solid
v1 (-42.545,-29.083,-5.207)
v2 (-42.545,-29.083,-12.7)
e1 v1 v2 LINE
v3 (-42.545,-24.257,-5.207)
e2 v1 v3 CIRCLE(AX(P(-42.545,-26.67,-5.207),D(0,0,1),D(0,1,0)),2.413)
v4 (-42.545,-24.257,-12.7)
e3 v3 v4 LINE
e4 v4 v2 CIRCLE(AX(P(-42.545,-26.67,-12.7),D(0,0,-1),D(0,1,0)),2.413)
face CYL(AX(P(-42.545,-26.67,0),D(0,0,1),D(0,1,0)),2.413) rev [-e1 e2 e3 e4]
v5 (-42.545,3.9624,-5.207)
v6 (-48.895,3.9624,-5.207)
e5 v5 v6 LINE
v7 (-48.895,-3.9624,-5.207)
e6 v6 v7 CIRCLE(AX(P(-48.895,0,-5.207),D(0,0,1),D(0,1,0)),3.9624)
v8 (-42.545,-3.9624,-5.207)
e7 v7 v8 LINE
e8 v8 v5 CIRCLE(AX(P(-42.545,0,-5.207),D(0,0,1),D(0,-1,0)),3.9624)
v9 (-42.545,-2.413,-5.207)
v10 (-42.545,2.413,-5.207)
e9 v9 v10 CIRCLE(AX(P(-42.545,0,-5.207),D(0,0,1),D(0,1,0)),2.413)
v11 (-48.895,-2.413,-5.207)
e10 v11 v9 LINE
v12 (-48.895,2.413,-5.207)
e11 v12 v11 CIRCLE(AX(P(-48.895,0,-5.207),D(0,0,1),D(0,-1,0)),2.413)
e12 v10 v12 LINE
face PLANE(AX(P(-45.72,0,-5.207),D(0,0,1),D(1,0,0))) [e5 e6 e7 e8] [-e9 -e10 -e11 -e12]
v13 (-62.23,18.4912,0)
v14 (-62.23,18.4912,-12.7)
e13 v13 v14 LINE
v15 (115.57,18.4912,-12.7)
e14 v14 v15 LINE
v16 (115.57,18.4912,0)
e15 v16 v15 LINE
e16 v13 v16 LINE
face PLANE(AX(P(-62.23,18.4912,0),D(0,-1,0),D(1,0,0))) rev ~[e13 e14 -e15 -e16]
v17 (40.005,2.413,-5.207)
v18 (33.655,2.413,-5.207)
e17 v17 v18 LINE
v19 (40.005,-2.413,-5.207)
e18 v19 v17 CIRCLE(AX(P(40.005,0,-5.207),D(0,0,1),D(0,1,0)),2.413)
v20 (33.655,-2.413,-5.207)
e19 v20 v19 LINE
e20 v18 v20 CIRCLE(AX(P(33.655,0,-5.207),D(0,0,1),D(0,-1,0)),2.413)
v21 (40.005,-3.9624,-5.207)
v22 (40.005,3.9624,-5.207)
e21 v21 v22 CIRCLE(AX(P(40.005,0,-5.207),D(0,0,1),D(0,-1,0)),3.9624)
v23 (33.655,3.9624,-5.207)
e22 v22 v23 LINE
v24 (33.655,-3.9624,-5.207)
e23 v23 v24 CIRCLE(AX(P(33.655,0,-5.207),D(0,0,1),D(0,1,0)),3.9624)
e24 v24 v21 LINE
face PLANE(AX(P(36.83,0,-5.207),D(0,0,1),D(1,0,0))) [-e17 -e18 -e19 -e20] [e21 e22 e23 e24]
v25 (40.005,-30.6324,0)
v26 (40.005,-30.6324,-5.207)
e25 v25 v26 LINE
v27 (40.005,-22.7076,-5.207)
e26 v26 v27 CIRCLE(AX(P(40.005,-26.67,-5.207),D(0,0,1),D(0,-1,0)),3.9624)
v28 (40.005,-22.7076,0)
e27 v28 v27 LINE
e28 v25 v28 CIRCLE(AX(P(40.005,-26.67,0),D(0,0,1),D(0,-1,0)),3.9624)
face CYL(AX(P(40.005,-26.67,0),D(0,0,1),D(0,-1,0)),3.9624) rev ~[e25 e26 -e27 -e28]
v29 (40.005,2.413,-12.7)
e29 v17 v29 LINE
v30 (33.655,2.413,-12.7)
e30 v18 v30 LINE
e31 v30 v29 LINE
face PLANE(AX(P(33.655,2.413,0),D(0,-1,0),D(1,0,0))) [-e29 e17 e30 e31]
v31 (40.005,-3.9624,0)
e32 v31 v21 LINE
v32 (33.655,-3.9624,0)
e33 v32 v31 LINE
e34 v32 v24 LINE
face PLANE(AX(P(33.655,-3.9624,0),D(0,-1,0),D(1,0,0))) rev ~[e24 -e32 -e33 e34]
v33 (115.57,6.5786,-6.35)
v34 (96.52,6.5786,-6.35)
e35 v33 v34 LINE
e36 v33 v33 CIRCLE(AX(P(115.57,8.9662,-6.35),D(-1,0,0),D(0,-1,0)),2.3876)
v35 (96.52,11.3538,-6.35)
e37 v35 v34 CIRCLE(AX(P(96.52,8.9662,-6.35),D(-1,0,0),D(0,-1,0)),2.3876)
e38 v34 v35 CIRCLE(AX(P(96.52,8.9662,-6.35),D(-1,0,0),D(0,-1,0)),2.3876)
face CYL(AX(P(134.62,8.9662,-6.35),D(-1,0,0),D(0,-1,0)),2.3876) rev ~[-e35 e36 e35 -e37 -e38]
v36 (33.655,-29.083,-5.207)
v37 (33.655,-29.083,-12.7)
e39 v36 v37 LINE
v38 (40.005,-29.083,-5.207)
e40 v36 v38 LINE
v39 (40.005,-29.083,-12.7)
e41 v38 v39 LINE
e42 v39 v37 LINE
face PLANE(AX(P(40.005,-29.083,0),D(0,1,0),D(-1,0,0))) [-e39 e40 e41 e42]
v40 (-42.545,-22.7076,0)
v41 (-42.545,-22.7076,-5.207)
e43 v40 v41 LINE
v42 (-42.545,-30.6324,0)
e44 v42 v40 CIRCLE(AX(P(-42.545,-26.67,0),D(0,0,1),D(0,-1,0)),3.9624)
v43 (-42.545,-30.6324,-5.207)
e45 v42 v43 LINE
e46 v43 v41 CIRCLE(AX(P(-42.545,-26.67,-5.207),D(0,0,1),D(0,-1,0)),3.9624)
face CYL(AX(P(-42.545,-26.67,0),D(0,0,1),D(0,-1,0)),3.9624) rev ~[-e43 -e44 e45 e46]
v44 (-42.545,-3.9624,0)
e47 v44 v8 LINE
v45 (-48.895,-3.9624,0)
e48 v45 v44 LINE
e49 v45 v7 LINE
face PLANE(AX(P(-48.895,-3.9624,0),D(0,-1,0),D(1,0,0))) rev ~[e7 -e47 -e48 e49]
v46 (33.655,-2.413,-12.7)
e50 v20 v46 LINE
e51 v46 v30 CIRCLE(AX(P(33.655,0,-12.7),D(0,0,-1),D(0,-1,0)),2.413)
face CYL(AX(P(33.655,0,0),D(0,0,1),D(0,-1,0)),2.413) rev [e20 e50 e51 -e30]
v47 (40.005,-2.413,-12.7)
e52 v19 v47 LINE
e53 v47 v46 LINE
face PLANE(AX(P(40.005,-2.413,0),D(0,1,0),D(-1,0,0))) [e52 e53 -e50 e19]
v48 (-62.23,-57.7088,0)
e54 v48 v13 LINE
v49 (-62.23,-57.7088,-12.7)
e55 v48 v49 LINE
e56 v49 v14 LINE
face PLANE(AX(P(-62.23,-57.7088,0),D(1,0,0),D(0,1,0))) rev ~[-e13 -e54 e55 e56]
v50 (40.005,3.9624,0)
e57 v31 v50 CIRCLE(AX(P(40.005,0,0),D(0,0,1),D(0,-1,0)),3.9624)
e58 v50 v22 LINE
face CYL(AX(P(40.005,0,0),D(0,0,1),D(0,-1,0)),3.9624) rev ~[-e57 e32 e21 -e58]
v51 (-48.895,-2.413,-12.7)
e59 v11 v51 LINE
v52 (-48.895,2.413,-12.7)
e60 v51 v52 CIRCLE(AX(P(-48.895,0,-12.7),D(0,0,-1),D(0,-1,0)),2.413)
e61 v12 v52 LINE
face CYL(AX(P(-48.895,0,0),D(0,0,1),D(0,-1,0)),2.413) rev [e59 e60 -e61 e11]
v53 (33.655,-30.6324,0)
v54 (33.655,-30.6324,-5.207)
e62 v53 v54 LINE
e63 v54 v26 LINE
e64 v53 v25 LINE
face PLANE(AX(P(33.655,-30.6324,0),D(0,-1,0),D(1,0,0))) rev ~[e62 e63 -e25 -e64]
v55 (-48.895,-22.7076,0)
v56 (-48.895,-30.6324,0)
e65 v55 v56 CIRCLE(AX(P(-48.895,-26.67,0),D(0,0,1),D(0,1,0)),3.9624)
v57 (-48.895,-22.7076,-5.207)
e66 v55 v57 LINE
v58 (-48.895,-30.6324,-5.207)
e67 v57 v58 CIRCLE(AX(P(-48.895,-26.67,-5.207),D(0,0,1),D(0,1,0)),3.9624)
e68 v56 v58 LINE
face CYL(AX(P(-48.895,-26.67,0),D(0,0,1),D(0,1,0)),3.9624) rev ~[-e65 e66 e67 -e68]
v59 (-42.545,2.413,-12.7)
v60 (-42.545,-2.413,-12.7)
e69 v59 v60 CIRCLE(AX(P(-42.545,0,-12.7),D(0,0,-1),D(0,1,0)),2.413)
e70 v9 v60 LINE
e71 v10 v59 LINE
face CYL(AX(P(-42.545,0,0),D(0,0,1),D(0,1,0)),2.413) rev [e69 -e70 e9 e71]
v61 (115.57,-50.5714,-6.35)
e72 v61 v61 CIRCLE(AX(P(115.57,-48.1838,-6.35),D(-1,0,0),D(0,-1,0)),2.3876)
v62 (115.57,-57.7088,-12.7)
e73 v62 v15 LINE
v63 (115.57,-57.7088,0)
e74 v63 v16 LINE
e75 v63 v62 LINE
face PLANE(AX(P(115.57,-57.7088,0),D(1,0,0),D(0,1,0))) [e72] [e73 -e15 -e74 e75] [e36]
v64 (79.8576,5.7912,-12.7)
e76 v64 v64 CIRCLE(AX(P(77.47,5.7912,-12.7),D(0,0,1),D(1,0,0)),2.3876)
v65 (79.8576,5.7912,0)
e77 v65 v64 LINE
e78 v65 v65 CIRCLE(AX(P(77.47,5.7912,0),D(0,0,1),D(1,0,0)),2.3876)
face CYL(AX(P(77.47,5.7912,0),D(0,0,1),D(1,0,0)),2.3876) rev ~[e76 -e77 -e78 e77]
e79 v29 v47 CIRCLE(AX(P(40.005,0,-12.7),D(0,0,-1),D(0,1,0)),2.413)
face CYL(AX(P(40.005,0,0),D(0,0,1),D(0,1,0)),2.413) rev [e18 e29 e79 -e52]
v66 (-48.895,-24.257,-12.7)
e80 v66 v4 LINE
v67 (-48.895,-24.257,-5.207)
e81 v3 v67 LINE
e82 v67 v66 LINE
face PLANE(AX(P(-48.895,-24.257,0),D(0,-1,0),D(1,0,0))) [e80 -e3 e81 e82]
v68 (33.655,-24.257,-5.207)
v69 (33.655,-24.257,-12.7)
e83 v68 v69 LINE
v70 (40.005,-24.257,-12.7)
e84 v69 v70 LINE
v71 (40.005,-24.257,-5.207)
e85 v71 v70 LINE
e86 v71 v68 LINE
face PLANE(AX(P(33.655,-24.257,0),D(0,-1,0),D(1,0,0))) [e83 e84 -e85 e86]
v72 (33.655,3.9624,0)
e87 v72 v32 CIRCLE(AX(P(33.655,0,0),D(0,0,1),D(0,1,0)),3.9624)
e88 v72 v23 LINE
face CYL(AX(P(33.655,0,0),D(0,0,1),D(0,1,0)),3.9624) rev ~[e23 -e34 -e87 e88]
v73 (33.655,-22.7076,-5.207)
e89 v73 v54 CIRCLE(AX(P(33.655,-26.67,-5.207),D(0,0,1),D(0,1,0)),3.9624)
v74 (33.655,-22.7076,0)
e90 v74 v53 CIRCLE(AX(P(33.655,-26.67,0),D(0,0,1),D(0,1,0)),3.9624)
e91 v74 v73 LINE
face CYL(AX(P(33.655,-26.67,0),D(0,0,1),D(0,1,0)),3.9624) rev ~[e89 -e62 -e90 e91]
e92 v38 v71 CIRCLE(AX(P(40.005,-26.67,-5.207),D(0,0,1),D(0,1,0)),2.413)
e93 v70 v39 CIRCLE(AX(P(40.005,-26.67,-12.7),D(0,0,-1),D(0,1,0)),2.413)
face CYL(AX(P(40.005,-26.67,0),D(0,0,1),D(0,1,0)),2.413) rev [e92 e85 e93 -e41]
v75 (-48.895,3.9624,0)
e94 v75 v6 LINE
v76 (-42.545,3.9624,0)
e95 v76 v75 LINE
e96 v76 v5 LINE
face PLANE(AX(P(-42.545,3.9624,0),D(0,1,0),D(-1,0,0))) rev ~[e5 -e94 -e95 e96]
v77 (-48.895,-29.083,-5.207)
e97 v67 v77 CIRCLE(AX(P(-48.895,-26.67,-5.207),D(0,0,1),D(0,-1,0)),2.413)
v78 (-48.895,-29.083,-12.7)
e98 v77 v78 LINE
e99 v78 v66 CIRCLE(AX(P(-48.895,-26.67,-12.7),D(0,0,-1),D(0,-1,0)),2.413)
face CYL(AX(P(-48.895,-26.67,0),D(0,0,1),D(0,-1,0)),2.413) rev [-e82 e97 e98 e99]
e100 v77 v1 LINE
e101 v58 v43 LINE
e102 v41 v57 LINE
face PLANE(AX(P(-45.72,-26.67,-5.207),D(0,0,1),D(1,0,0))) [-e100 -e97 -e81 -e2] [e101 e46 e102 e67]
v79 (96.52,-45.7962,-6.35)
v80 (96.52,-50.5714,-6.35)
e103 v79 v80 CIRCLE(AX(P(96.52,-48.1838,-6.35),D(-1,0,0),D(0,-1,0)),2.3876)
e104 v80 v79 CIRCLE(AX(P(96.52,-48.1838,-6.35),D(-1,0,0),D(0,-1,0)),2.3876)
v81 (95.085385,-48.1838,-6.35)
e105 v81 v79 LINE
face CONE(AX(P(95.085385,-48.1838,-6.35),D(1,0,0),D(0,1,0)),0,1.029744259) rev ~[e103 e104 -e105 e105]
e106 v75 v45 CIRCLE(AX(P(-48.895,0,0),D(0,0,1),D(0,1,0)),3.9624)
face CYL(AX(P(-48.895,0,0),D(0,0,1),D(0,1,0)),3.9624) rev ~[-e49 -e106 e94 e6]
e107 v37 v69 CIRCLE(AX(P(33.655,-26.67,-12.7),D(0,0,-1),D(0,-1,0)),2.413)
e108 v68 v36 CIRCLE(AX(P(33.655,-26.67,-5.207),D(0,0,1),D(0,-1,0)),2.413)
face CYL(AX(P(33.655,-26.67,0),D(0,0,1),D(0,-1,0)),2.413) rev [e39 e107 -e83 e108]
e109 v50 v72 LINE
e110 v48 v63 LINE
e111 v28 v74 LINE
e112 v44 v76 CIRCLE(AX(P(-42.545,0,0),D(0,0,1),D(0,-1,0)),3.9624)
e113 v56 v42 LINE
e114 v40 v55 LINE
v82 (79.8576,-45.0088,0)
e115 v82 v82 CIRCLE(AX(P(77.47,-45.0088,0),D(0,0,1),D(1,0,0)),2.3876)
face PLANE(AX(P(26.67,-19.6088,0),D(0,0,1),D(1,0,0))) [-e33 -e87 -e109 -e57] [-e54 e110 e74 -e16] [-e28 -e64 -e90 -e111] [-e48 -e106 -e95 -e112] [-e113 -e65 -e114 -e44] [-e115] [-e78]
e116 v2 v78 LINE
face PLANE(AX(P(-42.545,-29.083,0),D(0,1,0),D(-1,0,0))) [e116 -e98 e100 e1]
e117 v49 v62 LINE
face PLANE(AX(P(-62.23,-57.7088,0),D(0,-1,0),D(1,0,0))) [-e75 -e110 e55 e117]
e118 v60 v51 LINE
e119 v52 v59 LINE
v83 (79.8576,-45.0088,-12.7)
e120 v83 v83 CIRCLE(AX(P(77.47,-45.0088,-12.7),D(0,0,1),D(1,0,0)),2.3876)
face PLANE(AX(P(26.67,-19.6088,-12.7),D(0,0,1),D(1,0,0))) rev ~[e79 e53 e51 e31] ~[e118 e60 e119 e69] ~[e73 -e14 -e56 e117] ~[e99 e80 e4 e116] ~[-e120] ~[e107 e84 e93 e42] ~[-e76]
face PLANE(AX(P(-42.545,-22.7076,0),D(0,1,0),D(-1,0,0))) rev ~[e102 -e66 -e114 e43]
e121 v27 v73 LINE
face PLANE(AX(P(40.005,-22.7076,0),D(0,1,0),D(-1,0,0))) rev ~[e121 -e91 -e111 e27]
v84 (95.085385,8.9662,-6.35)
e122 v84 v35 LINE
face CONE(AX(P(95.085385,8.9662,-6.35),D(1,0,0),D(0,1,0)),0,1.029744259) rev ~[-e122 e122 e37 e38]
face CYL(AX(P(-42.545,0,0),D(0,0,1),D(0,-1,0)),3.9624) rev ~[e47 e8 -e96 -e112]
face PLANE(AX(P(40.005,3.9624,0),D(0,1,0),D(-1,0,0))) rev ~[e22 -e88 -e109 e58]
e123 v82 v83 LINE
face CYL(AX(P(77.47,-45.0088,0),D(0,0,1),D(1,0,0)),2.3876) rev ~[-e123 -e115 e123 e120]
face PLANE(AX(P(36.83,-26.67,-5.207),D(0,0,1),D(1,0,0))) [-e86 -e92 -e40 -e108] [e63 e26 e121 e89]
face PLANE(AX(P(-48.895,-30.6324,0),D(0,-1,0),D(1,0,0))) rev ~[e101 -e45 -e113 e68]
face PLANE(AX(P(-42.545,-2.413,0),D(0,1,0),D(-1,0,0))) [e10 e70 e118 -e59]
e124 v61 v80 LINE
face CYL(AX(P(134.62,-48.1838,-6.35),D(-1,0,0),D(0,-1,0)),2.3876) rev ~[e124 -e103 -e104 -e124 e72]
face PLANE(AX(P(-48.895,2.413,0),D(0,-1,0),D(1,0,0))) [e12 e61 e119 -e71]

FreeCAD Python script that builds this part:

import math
import FreeCAD as App
import Part
import Sketcher
from FreeCAD import Vector
Q = App.Units.Quantity

doc = App.newDocument("Part")
params = doc.addObject("Spreadsheet::Sheet", "Params")
for row, (alias, value) in enumerate([
    ("sketch1_width", "7 in"),
    ("sketch1_height", "3 in"),
    ("sketch1_diameter", "0.188 in"),
    ("sketch1_radius", "0.095 in"),
    ("sketch1_width2", "0.25 in"),
    ("pad1_length", "0.5 in"),
    ("sketch2_radius", "0.156 in"),
    ("sketch2_width", "0.25 in"),
    ("pocket1_length", "0.205 in"),
    ("sketch3_diameter", "0.188 in"),
    ("hole_diameter", "0.188 in"),
    ("hole_depth", "0.75 in"),
], start=1):
    params.set(f"A{row}", alias)
    params.set(f"B{row}", "=" + value)
    params.setAlias(f"B{row}", alias)

body = doc.addObject("PartDesign::Body", "Body")

# Sketch on XY plane
sketch1 = body.newObject("Sketcher::SketchObject", "Sketch")
sketch1.AttachmentSupport = (doc.getObject("XY_Plane"), [""])
sketch1.MapMode = "FlatFace"
sketch1.addGeometry([
    Part.LineSegment(Vector(-62.2, 18.5, 0), Vector(-62.2, -57.7, 0)),  # 0
    Part.LineSegment(Vector(-62.2, -57.7, 0), Vector(115.6, -57.7, 0)),  # 1
    Part.LineSegment(Vector(115.6, -57.7, 0), Vector(115.6, 18.5, 0)),  # 2
    Part.LineSegment(Vector(115.6, 18.5, 0), Vector(-62.2, 18.5, 0)),  # 3
    Part.LineSegment(Vector(-42.5, -29.1, 0), Vector(-48.9, -29.1, 0)),  # 4
    Part.ArcOfCircle(Part.Circle(Vector(-48.9, -26.7, 0), Vector(0, 0, 1), 2.4), math.radians(90), math.radians(270)),  # 5
    Part.LineSegment(Vector(-48.9, -24.3, 0), Vector(-42.5, -24.3, 0)),  # 6
    Part.ArcOfCircle(Part.Circle(Vector(-42.5, -26.7, 0), Vector(0, 0, 1), 2.4), math.radians(-90), math.radians(90)),  # 7
    Part.Circle(Vector(77.5, -45, 0), Vector(0, 0, 1), 2.4),  # 8
    Part.LineSegment(Vector(40, -29.1, 0), Vector(33.7, -29.1, 0)),  # 9
    Part.ArcOfCircle(Part.Circle(Vector(33.7, -26.7, 0), Vector(0, 0, 1), 2.4), math.radians(90), math.radians(270)),  # 10
    Part.LineSegment(Vector(33.7, -24.3, 0), Vector(40, -24.3, 0)),  # 11
    Part.ArcOfCircle(Part.Circle(Vector(40, -26.7, 0), Vector(0, 0, 1), 2.4), math.radians(-90), math.radians(90)),  # 12
    Part.LineSegment(Vector(-42.5, -2.4, 0), Vector(-48.9, -2.4, 0)),  # 13
    Part.ArcOfCircle(Part.Circle(Vector(-48.9, 0, 0), Vector(0, 0, 1), 2.4), math.radians(90), math.radians(270)),  # 14
    Part.LineSegment(Vector(-48.9, 2.4, 0), Vector(-42.5, 2.4, 0)),  # 15
    Part.ArcOfCircle(Part.Circle(Vector(-42.5, 0, 0), Vector(0, 0, 1), 2.4), math.radians(-90), math.radians(90)),  # 16
    Part.ArcOfCircle(Part.Circle(Vector(40, 0, 0), Vector(0, 0, 1), 2.4), math.radians(-90), math.radians(90)),  # 17
    Part.LineSegment(Vector(40, -2.4, 0), Vector(33.7, -2.4, 0)),  # 18
    Part.ArcOfCircle(Part.Circle(Vector(33.7, 0, 0), Vector(0, 0, 1), 2.4), math.radians(90), math.radians(270)),  # 19
    Part.LineSegment(Vector(33.7, 2.4, 0), Vector(40, 2.4, 0)),  # 20
    Part.Circle(Vector(77.5, 5.8, 0), Vector(0, 0, 1), 2.4),  # 21
], False)
sketch1.addConstraint([
    Sketcher.Constraint("Coincident", 0, 2, 1, 1),
    Sketcher.Constraint("Coincident", 1, 2, 2, 1),
    Sketcher.Constraint("Coincident", 2, 2, 3, 1),
    Sketcher.Constraint("Coincident", 3, 2, 0, 1),
    Sketcher.Constraint("Tangent", 4, 2, 5, 2),
    Sketcher.Constraint("Tangent", 5, 1, 6, 1),
    Sketcher.Constraint("Tangent", 6, 2, 7, 2),
    Sketcher.Constraint("Tangent", 7, 1, 4, 1),
    Sketcher.Constraint("Tangent", 9, 2, 10, 2),
    Sketcher.Constraint("Tangent", 10, 1, 11, 1),
    Sketcher.Constraint("Tangent", 11, 2, 12, 2),
    Sketcher.Constraint("Tangent", 12, 1, 9, 1),
    Sketcher.Constraint("Tangent", 13, 2, 14, 2),
    Sketcher.Constraint("Tangent", 14, 1, 15, 1),
    Sketcher.Constraint("Tangent", 15, 2, 16, 2),
    Sketcher.Constraint("Tangent", 16, 1, 13, 1),
    Sketcher.Constraint("Tangent", 17, 1, 18, 1),
    Sketcher.Constraint("Tangent", 18, 2, 19, 2),
    Sketcher.Constraint("Tangent", 19, 1, 20, 1),
    Sketcher.Constraint("Tangent", 20, 2, 17, 2),
    Sketcher.Constraint("Vertical", 0),
    Sketcher.Constraint("Horizontal", 1),
    Sketcher.Constraint("Vertical", 2),
    Sketcher.Constraint("Horizontal", 3),
    Sketcher.Constraint("Horizontal", 4),
    Sketcher.Constraint("Horizontal", 6),
    Sketcher.Constraint("Horizontal", 9),
    Sketcher.Constraint("Horizontal", 11),
    Sketcher.Constraint("Horizontal", 13),
    Sketcher.Constraint("Horizontal", 15),
    Sketcher.Constraint("Horizontal", 18),
    Sketcher.Constraint("Horizontal", 20),
    Sketcher.Constraint("Equal", 7, 10),
    Sketcher.Constraint("Equal", 12, 14),
    Sketcher.Constraint("Equal", 16, 17),
    Sketcher.Constraint("Equal", 8, 21),
    Sketcher.Constraint("PointOnObject", 14, 3, -1),
    Sketcher.Constraint("PointOnObject", 17, 3, -1),
    Sketcher.Constraint("Horizontal", 7, 3, 10, 3),
    Sketcher.Constraint("Vertical", 5, 3, 14, 3),
    Sketcher.Constraint("Vertical", 7, 3, 16, 3),
    Sketcher.Constraint("Vertical", 12, 3, 17, 3),
    Sketcher.Constraint("Vertical", 10, 3, 19, 3),
    Sketcher.Constraint("Vertical", 8, 3, 21, 3),
    Sketcher.Constraint("Equal", 6, 9),
    Sketcher.Constraint("DistanceX", 1, 1, 1, 2, Q("7 in")),
    Sketcher.Constraint("DistanceY", 0, 2, 0, 1, Q("3 in")),
    Sketcher.Constraint("Diameter", 8, Q("0.188 in")),
    Sketcher.Constraint("Radius", 5, Q("0.095 in")),
    Sketcher.Constraint("DistanceX", 7, 3, 10, 3, Q("3 in")),
    Sketcher.Constraint("DistanceY", 8, 3, 21, 3, Q("2 in")),
    Sketcher.Constraint("DistanceX", 4, 2, 4, 1, Q("0.25 in")),
    Sketcher.Constraint("DistanceX", 8, 3, 1, 2, Q("1.5 in")),
    Sketcher.Constraint("DistanceY", 1, 2, 8, 3, Q("0.5 in")),
    Sketcher.Constraint("DistanceY", 5, 3, -1, 1, Q("1.05 in")),
    Sketcher.Constraint("DistanceX", -1, 1, 8, 3, Q("3.05 in")),
    Sketcher.Constraint("DistanceX", 5, 3, -1, 1, Q("1.925 in")),
    Sketcher.Constraint("DistanceY", 8, 3, -1, 1, Q("1.772 in")),
])
sketch1.setExpression("Constraints[45]", "Params.sketch1_width")
sketch1.setExpression("Constraints[46]", "Params.sketch1_height")
sketch1.setExpression("Constraints[47]", "Params.sketch1_diameter")
sketch1.setExpression("Constraints[48]", "Params.sketch1_radius")
sketch1.setExpression("Constraints[51]", "Params.sketch1_width2")
pad1 = body.newObject("PartDesign::Pad", "Pad")
pad1.Profile = sketch1
pad1.setExpression("Length", "Params.pad1_length")
pad1.Reversed = True

# Sketch on XY plane
sketch2 = body.newObject("Sketcher::SketchObject", "Sketch001")
sketch2.AttachmentSupport = (doc.getObject("XY_Plane"), [""])
sketch2.MapMode = "FlatFace"
sketch2.addGeometry([
    Part.LineSegment(Vector(-42.5, 4, 0), Vector(-48.9, 4, 0)),  # 0
    Part.ArcOfCircle(Part.Circle(Vector(-48.9, 0, 0), Vector(0, 0, 1), 4), math.radians(90), math.radians(270)),  # 1
    Part.LineSegment(Vector(-48.9, -4, 0), Vector(-42.5, -4, 0)),  # 2
    Part.ArcOfCircle(Part.Circle(Vector(-42.5, 0, 0), Vector(0, 0, 1), 4), math.radians(-90), math.radians(90)),  # 3
    Part.LineSegment(Vector(33.7, -4, 0), Vector(40, -4, 0)),  # 4
    Part.ArcOfCircle(Part.Circle(Vector(40, 0, 0), Vector(0, 0, 1), 4), math.radians(-90), math.radians(90)),  # 5
    Part.LineSegment(Vector(40, 4, 0), Vector(33.7, 4, 0)),  # 6
    Part.ArcOfCircle(Part.Circle(Vector(33.7, 0, 0), Vector(0, 0, 1), 4), math.radians(90), math.radians(270)),  # 7
    Part.ArcOfCircle(Part.Circle(Vector(40, -26.7, 0), Vector(0, 0, 1), 4), math.radians(-90), math.radians(90)),  # 8
    Part.LineSegment(Vector(40, -22.7, 0), Vector(33.7, -22.7, 0)),  # 9
    Part.ArcOfCircle(Part.Circle(Vector(33.7, -26.7, 0), Vector(0, 0, 1), 4), math.radians(90), math.radians(270)),  # 10
    Part.LineSegment(Vector(33.7, -30.6, 0), Vector(40, -30.6, 0)),  # 11
    Part.LineSegment(Vector(-42.5, -22.7, 0), Vector(-48.9, -22.7, 0)),  # 12
    Part.ArcOfCircle(Part.Circle(Vector(-48.9, -26.7, 0), Vector(0, 0, 1), 4), math.radians(90), math.radians(270)),  # 13
    Part.LineSegment(Vector(-48.9, -30.6, 0), Vector(-42.5, -30.6, 0)),  # 14
    Part.ArcOfCircle(Part.Circle(Vector(-42.5, -26.7, 0), Vector(0, 0, 1), 4), math.radians(-90), math.radians(90)),  # 15
], False)
sketch2.addConstraint([
    Sketcher.Constraint("Tangent", 0, 2, 1, 1),
    Sketcher.Constraint("Tangent", 1, 2, 2, 1),
    Sketcher.Constraint("Tangent", 2, 2, 3, 1),
    Sketcher.Constraint("Tangent", 3, 2, 0, 1),
    Sketcher.Constraint("Tangent", 4, 2, 5, 1),
    Sketcher.Constraint("Tangent", 5, 2, 6, 1),
    Sketcher.Constraint("Tangent", 6, 2, 7, 1),
    Sketcher.Constraint("Tangent", 7, 2, 4, 1),
    Sketcher.Constraint("Tangent", 8, 2, 9, 1),
    Sketcher.Constraint("Tangent", 9, 2, 10, 1),
    Sketcher.Constraint("Tangent", 10, 2, 11, 1),
    Sketcher.Constraint("Tangent", 11, 2, 8, 1),
    Sketcher.Constraint("Tangent", 12, 2, 13, 1),
    Sketcher.Constraint("Tangent", 13, 2, 14, 1),
    Sketcher.Constraint("Tangent", 14, 2, 15, 1),
    Sketcher.Constraint("Tangent", 15, 2, 12, 1),
    Sketcher.Constraint("Horizontal", 0),
    Sketcher.Constraint("Horizontal", 2),
    Sketcher.Constraint("Horizontal", 4),
    Sketcher.Constraint("Horizontal", 6),
    Sketcher.Constraint("Horizontal", 9),
    Sketcher.Constraint("Horizontal", 11),
    Sketcher.Constraint("Horizontal", 12),
    Sketcher.Constraint("Horizontal", 14),
    Sketcher.Constraint("Equal", 3, 5),
    Sketcher.Constraint("Equal", 7, 8),
    Sketcher.Constraint("Equal", 10, 13),
    Sketcher.Constraint("PointOnObject", 1, 3, -1),
    Sketcher.Constraint("PointOnObject", 5, 3, -1),
    Sketcher.Constraint("Horizontal", 10, 3, 13, 3),
    Sketcher.Constraint("Vertical", 5, 3, 8, 3),
    Sketcher.Constraint("Vertical", 7, 3, 10, 3),
    Sketcher.Constraint("Vertical", 1, 3, 13, 3),
    Sketcher.Constraint("Vertical", 3, 3, 15, 3),
    Sketcher.Constraint("Equal", 2, 4),
    Sketcher.Constraint("Radius", 1, Q("0.156 in")),
    Sketcher.Constraint("DistanceX", 3, 3, 7, 3, Q("3 in")),
    Sketcher.Constraint("DistanceX", 0, 2, 0, 1, Q("0.25 in")),
    Sketcher.Constraint("DistanceY", 8, 3, -1, 1, Q("1.05 in")),
    Sketcher.Constraint("DistanceX", 1, 3, -1, 1, Q("1.925 in")),
])
sketch2.setExpression("Constraints[35]", "Params.sketch2_radius")
sketch2.setExpression("Constraints[37]", "Params.sketch2_width")
pocket1 = body.newObject("PartDesign::Pocket", "Pocket")
pocket1.Profile = sketch2
pocket1.setExpression("Length", "Params.pocket1_length")

# Sketch on YZ plane
sketch3 = body.newObject("Sketcher::SketchObject", "Sketch002")
sketch3.AttachmentSupport = (doc.getObject("YZ_Plane"), [""])
sketch3.MapMode = "FlatFace"
sketch3.AttachmentOffset = App.Placement(Vector(0, 0, 4.55 * 25.4), App.Rotation())
sketch3.addGeometry([
    Part.Circle(Vector(-48.2, -6.3, 0), Vector(0, 0, 1), 2.4),
    Part.Circle(Vector(9, -6.3, 0), Vector(0, 0, 1), 2.4),
], False)
sketch3.addConstraint([
    Sketcher.Constraint("Equal", 0, 1),
    Sketcher.Constraint("Horizontal", 0, 3, 1, 3),
    Sketcher.Constraint("Diameter", 0, Q("0.188 in")),
    Sketcher.Constraint("DistanceY", 0, 3, -1, 1, Q("0.25 in")),
    Sketcher.Constraint("DistanceX", 0, 3, 1, 3, Q("2.25 in")),
    Sketcher.Constraint("DistanceX", 0, 3, -1, 1, Q("1.897 in")),
])
sketch3.setExpression("Constraints[2]", "Params.sketch3_diameter")
doc.recompute()
hole = body.newObject("PartDesign::Hole", "Hole")
hole.Profile = sketch3
hole.ThreadType = "None"
hole.setExpression("Diameter", "Params.hole_diameter")
hole.DepthType = "Dimension"
hole.setExpression("Depth", "Params.hole_depth")
hole.DrillPoint = "Angled"
hole.DrillPointAngle = 118

doc.recompute()
